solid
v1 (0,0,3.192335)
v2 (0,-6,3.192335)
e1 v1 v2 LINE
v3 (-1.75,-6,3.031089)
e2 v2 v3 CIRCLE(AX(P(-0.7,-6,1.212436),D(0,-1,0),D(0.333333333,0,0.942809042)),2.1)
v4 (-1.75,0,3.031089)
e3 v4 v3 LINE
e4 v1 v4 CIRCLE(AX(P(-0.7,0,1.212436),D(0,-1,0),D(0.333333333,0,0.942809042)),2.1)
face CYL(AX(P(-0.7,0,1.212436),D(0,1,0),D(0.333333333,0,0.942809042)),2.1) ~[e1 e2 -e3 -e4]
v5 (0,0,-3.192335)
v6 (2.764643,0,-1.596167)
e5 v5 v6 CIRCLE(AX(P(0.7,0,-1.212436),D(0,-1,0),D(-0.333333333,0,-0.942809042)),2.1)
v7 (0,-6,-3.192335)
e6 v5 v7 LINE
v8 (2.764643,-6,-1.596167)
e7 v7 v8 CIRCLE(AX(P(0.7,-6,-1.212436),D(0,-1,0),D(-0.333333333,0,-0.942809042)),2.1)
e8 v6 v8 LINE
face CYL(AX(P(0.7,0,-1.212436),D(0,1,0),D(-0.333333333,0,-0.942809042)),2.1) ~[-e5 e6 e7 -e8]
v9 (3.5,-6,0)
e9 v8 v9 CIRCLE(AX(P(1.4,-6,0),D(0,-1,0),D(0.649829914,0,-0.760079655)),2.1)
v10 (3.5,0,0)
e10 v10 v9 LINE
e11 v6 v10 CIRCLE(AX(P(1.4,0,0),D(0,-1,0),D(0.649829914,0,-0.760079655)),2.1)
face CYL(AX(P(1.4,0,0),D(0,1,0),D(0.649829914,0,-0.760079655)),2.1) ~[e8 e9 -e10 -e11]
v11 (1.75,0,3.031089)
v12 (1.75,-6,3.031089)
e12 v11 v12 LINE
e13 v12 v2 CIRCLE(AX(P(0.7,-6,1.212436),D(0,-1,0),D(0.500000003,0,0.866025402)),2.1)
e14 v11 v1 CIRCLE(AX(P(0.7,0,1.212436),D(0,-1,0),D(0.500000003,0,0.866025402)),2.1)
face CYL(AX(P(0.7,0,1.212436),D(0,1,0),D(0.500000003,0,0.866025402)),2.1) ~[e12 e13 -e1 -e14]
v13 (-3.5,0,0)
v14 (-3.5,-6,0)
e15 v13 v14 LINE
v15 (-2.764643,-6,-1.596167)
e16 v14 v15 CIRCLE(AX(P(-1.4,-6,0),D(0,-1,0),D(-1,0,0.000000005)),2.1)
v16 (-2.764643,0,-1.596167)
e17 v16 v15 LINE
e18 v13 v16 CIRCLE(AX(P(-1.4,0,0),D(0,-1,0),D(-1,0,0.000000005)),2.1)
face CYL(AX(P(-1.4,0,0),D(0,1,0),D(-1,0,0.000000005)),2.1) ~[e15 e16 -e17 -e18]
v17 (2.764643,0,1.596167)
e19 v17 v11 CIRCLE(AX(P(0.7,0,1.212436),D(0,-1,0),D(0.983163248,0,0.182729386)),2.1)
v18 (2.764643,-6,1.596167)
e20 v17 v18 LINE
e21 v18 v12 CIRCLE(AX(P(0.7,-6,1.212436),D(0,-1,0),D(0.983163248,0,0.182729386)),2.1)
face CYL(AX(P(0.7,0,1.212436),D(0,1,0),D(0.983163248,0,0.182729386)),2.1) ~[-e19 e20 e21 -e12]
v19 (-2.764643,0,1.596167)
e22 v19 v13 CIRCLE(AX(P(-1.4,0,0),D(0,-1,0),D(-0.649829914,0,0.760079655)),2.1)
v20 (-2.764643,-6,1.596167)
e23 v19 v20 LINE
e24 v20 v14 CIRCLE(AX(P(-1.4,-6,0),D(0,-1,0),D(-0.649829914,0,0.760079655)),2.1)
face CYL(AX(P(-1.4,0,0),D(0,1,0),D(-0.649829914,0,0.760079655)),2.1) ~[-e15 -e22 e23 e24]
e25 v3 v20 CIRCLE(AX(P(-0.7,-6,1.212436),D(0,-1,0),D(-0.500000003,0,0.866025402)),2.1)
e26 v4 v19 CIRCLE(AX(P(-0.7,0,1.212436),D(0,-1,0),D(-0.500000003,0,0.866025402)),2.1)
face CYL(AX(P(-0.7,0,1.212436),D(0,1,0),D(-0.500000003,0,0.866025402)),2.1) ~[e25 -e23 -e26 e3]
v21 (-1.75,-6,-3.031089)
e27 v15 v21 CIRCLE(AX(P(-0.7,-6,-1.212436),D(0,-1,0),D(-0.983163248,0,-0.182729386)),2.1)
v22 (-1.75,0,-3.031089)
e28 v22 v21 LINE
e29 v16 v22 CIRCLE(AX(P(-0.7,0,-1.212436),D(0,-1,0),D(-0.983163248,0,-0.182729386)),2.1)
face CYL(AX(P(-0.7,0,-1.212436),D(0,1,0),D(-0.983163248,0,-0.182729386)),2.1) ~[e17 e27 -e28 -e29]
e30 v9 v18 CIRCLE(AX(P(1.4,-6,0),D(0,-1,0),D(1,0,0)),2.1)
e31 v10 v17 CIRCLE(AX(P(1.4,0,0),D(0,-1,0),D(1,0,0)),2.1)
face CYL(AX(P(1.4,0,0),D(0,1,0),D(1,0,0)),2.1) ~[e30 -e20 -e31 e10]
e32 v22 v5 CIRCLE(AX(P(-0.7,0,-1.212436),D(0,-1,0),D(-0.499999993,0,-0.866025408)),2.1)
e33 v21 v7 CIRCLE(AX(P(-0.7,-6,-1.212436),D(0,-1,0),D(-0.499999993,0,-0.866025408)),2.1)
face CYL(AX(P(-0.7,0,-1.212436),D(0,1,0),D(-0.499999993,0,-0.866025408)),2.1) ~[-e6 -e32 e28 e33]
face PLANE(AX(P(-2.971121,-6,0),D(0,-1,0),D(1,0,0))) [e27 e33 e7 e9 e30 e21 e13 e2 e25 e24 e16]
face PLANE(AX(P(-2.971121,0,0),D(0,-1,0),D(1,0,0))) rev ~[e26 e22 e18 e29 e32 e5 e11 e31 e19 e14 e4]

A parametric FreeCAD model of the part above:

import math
import FreeCAD as App
import Part
import Sketcher
from FreeCAD import Vector
Q = App.Units.Quantity

doc = App.newDocument("Part")
params = doc.addObject("Spreadsheet::Sheet", "Params")
for row, (alias, value) in enumerate([
    ("sketch1_radius", "2.1 mm"),
    ("pad1_length", "6 mm"),
], start=1):
    params.set(f"A{row}", alias)
    params.set(f"B{row}", "=" + value)
    params.setAlias(f"B{row}", alias)

body = doc.addObject("PartDesign::Body", "Body")

# Sketch on XZ plane
sketch1 = body.newObject("Sketcher::SketchObject", "Sketch")
sketch1.AttachmentSupport = (doc.getObject("XZ_Plane"), [""])
sketch1.MapMode = "FlatFace"
sketch1.addGeometry(Part.ArcOfCircle(Part.Circle(Vector(0.7, -1.2, 0), Vector(0, 0, 1), 2.1), math.radians(-109), math.radians(-11)), False)
sketch1.addGeometry(Part.ArcOfCircle(Part.Circle(Vector(1.4, 0, 0), Vector(0, 0, 1), 2.1), math.radians(-49), math.radians(0)), False)
sketch1.addGeometry(Part.ArcOfCircle(Part.Circle(Vector(1.4, 0, 0), Vector(0, 0, 1), 2.1), math.radians(0), math.radians(49)), False)
sketch1.addGeometry(Part.ArcOfCircle(Part.Circle(Vector(0.7, 1.2, 0), Vector(0, 0, 1), 2.1), math.radians(11), math.radians(60)), False)
sketch1.addGeometry(Part.ArcOfCircle(Part.Circle(Vector(0.7, 1.2, 0), Vector(0, 0, 1), 2.1), math.radians(60), math.radians(109)), False)
sketch1.addGeometry(Part.ArcOfCircle(Part.Circle(Vector(-0.7, 1.2, 0), Vector(0, 0, 1), 2.1), math.radians(71), math.radians(120)), False)
sketch1.addGeometry(Part.ArcOfCircle(Part.Circle(Vector(-0.7, 1.2, 0), Vector(0, 0, 1), 2.1), math.radians(120), math.radians(169)), False)
sketch1.addGeometry(Part.ArcOfCircle(Part.Circle(Vector(-1.4, 0, 0), Vector(0, 0, 1), 2.1), math.radians(131), math.radians(180)), False)
sketch1.addGeometry(Part.ArcOfCircle(Part.Circle(Vector(-1.4, 0, 0), Vector(0, 0, 1), 2.1), math.radians(180), math.radians(229)), False)
sketch1.addGeometry(Part.ArcOfCircle(Part.Circle(Vector(-0.7, -1.2, 0), Vector(0, 0, 1), 2.1), math.radians(-169), math.radians(-120)), False)
sketch1.addGeometry(Part.ArcOfCircle(Part.Circle(Vector(-0.7, -1.2, 0), Vector(0, 0, 1), 2.1), math.radians(-120), math.radians(-71)), False)
sketch1.addConstraint(Sketcher.Constraint("Coincident", 0, 2, 1, 1))
sketch1.addConstraint(Sketcher.Constraint("Tangent", 1, 2, 2, 1))
sketch1.addConstraint(Sketcher.Constraint("Coincident", 2, 2, 3, 1))
sketch1.addConstraint(Sketcher.Constraint("Tangent", 3, 2, 4, 1))
sketch1.addConstraint(Sketcher.Constraint("Coincident", 4, 2, 5, 1))
sketch1.addConstraint(Sketcher.Constraint("Tangent", 5, 2, 6, 1))
sketch1.addConstraint(Sketcher.Constraint("Coincident", 6, 2, 7, 1))
sketch1.addConstraint(Sketcher.Constraint("Tangent", 7, 2, 8, 1))
sketch1.addConstraint(Sketcher.Constraint("Coincident", 8, 2, 9, 1))
sketch1.addConstraint(Sketcher.Constraint("Tangent", 9, 2, 10, 1))
sketch1.addConstraint(Sketcher.Constraint("Coincident", 10, 2, 0, 1))
sketch1.addConstraint(Sketcher.Constraint("Equal", 0, 1))
sketch1.addConstraint(Sketcher.Constraint("Equal", 1, 2))
sketch1.addConstraint(Sketcher.Constraint("Equal", 2, 3))
sketch1.addConstraint(Sketcher.Constraint("Equal", 3, 4))
sketch1.addConstraint(Sketcher.Constraint("Equal", 4, 5))
sketch1.addConstraint(Sketcher.Constraint("Equal", 5, 6))
sketch1.addConstraint(Sketcher.Constraint("Equal", 6, 7))
sketch1.addConstraint(Sketcher.Constraint("Equal", 7, 8))
sketch1.addConstraint(Sketcher.Constraint("Equal", 8, 9))
sketch1.addConstraint(Sketcher.Constraint("Equal", 9, 10))
sketch1.addConstraint(Sketcher.Constraint("Symmetric", 0, 3, 5, 3, -1, 1))
sketch1.addConstraint(Sketcher.Constraint("Symmetric", 1, 3, 7, 3, -1, 1))
sketch1.addConstraint(Sketcher.Constraint("Symmetric", 3, 3, 9, 3, -1, 1))
sketch1.addConstraint(Sketcher.Constraint("Symmetric", 3, 3, 5, 3, -2))
sketch1.addConstraint(Sketcher.Constraint("PointOnObject", 1, 3, -1))
sketch1.addConstraint(Sketcher.Constraint("PointOnObject", 1, 2, -1))
sketch1.addConstraint(Sketcher.Constraint("PointOnObject", 7, 2, -1))
sketch1.addConstraint(Sketcher.Constraint("Horizontal", 3, 2, 5, 2))
sketch1.addConstraint(Sketcher.Constraint("Vertical", 5, 2, 9, 2))
sketch1.addConstraint(Sketcher.Constraint("Radius", 0, Q("2.1 mm")))
sketch1.addConstraint(Sketcher.Constraint("DistanceX", -1, 1, 0, 3, Q("0.7 mm")))
sketch1.addConstraint(Sketcher.Constraint("DistanceX", -1, 1, 1, 3, Q("1.4 mm")))
sketch1.addConstraint(Sketcher.Constraint("DistanceX", -1, 1, 3, 2, Q("1.75 mm")))
sketch1.addConstraint(Sketcher.Constraint("DistanceY", -1, 1, 3, 2, Q("3.031089 mm")))
sketch1.setExpression("Constraints[30]", "Params.sketch1_radius")
pad1 = body.newObject("PartDesign::Pad", "Pad")
pad1.Profile = sketch1
pad1.setExpression("Length", "Params.pad1_length")

doc.recompute()
